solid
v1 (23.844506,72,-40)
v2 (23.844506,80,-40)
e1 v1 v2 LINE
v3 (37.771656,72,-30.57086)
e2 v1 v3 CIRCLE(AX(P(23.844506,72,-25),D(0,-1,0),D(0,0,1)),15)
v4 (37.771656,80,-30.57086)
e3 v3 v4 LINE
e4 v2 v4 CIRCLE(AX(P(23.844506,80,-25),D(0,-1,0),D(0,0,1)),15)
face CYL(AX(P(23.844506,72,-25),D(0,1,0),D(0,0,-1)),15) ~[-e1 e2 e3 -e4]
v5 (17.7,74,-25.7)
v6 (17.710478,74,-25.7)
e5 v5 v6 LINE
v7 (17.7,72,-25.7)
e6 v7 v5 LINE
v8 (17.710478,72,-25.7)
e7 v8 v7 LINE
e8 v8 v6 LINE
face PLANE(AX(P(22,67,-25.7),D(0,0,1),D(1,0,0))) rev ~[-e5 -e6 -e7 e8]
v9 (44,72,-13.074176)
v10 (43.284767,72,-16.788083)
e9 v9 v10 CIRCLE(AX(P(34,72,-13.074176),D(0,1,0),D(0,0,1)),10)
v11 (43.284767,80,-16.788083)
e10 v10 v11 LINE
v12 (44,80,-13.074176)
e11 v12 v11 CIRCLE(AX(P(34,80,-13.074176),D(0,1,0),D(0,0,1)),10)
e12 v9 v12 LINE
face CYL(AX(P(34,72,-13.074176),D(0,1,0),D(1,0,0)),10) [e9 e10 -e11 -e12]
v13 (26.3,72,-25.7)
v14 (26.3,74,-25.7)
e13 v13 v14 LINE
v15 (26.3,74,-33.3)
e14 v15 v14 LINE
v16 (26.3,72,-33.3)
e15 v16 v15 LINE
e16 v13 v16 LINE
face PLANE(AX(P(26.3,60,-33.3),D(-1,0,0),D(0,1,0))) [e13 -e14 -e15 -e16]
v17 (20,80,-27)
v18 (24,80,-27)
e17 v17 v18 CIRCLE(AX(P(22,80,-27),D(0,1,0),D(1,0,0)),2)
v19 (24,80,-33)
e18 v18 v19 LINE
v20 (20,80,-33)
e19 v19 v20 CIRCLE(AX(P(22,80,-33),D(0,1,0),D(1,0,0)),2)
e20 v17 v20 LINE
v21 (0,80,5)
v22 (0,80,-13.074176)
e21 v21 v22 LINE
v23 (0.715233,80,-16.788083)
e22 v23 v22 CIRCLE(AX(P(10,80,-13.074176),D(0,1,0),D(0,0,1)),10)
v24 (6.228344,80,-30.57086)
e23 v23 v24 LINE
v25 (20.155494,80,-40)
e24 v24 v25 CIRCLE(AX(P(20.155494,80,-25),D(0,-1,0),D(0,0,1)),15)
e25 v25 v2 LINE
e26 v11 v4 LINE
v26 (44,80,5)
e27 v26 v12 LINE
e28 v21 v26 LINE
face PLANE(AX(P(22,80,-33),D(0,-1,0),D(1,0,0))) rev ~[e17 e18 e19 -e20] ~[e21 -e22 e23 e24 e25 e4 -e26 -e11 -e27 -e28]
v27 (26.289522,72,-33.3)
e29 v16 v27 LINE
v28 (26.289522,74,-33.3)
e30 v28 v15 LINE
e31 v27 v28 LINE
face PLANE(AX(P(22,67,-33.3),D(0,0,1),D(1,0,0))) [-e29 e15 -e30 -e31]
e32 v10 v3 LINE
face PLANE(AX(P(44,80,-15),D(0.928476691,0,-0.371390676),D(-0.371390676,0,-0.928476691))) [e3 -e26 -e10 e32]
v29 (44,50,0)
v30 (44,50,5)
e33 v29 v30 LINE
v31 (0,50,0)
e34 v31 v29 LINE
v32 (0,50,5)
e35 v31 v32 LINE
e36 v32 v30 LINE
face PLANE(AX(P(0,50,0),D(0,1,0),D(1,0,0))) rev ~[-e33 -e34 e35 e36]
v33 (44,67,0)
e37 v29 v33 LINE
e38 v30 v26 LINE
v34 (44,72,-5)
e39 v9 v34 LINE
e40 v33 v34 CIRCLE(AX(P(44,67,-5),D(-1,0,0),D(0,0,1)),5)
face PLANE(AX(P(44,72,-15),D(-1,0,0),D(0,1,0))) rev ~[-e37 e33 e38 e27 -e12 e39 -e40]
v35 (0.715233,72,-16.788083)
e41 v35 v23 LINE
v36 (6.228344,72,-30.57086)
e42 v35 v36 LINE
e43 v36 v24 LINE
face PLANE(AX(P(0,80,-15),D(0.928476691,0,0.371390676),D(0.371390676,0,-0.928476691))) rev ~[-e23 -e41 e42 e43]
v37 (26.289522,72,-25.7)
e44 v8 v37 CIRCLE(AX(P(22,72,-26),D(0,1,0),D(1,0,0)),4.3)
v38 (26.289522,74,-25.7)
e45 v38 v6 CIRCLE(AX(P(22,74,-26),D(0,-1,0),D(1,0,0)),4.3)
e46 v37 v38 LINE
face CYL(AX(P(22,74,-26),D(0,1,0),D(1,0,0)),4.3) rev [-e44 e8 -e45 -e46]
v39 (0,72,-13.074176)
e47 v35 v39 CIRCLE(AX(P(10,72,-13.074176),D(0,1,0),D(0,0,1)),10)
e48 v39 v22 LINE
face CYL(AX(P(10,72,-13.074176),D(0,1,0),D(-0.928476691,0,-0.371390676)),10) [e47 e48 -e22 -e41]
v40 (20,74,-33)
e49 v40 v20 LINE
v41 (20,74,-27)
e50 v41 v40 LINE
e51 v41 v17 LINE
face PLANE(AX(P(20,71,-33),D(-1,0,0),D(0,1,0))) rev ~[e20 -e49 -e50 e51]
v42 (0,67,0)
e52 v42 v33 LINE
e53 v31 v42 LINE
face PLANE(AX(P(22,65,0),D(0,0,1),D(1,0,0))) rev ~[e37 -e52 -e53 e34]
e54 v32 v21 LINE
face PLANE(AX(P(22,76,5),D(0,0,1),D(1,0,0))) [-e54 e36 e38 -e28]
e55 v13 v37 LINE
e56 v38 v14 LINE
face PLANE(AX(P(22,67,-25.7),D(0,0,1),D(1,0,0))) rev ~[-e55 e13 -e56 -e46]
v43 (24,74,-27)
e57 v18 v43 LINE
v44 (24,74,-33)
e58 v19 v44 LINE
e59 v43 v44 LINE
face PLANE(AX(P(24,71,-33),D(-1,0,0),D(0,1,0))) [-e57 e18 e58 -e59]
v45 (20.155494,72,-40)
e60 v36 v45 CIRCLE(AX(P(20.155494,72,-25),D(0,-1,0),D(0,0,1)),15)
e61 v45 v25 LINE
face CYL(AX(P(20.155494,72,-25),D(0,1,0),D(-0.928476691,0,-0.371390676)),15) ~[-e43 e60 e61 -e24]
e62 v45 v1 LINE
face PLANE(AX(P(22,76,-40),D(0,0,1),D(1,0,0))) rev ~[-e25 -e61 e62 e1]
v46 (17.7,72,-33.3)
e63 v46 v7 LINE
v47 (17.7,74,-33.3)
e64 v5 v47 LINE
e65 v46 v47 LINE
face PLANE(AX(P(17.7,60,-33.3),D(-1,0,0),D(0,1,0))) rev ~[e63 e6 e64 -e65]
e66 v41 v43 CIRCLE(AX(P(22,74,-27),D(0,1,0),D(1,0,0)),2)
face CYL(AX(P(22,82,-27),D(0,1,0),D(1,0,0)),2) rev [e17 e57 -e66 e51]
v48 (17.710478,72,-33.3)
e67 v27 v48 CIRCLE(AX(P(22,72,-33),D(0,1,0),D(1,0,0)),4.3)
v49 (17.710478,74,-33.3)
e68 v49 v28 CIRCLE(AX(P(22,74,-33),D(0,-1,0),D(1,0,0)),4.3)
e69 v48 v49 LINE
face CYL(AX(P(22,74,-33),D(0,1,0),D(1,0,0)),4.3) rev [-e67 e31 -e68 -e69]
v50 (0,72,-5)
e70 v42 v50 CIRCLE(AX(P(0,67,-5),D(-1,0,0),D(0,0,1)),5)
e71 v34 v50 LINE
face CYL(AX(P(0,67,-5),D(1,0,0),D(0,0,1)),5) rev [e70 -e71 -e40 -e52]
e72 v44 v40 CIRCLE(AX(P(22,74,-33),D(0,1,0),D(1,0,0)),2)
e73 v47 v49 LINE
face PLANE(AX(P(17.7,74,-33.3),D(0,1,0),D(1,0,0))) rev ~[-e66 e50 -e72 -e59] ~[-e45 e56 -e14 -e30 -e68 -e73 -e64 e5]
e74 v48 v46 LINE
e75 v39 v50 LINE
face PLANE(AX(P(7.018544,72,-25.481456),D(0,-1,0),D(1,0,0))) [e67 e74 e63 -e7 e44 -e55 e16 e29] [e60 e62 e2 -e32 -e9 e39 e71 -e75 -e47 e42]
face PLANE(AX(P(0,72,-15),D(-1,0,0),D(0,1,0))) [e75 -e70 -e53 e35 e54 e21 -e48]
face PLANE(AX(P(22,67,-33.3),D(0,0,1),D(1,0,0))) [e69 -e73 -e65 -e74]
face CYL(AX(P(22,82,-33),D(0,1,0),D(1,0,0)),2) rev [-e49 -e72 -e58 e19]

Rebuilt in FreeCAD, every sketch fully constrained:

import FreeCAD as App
import Part
import Sketcher
Q = App.Units.Quantity


def edges_at(feature, points):
    """Names of the edges that pass closest to the given points."""
    edges = feature.Shape.Edges
    near = lambda p: min(range(len(edges)), key=lambda i: edges[i].distToShape(Part.Vertex(*p))[0])
    return sorted({f"Edge{near(p) + 1}" for p in points})


def add_polygon(sketch, points):
    """Adds a closed chain of lines whose ends are joined by coincident constraints."""
    first, n = sketch.GeometryCount, len(points)
    for a, b in zip(points, points[1:] + points[:1]):
        sketch.addGeometry(Part.LineSegment(App.Vector(*a, 0), App.Vector(*b, 0)), False)
    for i in range(n):
        sketch.addConstraint(Sketcher.Constraint("Coincident", first + i, 2, first + (i + 1) % n, 1))

doc = App.newDocument("Part")
body = doc.addObject("PartDesign::Body", "Body")

sketch1 = body.newObject("Sketcher::SketchObject", "Sketch")
sketch1.AttachmentSupport = (doc.getObject("XY_Plane"), [""])
sketch1.MapMode = "FlatFace"
sketch1.AttachmentOffset = App.Placement(App.Vector(0, 0, -33.3), App.Rotation())
add_polygon(sketch1, [(18, 73), (18, 59), (26, 59), (26, 73)])
sketch1.addConstraint([
    Sketcher.Constraint("Vertical", 0),
    Sketcher.Constraint("Horizontal", 1),
    Sketcher.Constraint("Vertical", 2),
    Sketcher.Constraint("Horizontal", 3),
    Sketcher.Constraint("DistanceY", 0, 2, 0, 1, Q("14 mm")),
    Sketcher.Constraint("DistanceX", 1, 1, 1, 2, Q("8.6 mm")),
    Sketcher.Constraint("DistanceY", -1, 1, 0, 2, Q("59 mm")),
    Sketcher.Constraint("DistanceX", -1, 1, 0, 2, Q("17.7 mm")),
])
pad1 = body.newObject("PartDesign::Pad", "Pad")
pad1.Profile = sketch1
pad1.Length = 7.6
body2 = doc.addObject("PartDesign::Body", "Body001")

sketch2 = body2.newObject("Sketcher::SketchObject", "Sketch001")
sketch2.AttachmentSupport = (doc.getObject("XZ_Plane001"), [""])
sketch2.MapMode = "FlatFace"
sketch2.AttachmentOffset = App.Placement(App.Vector(0, 0, -73), App.Rotation())
sketch2.addGeometry(Part.Circle(App.Vector(22, -26, 0), App.Vector(0, 0, 1), 4.3), False)
sketch2.addConstraint([
    Sketcher.Constraint("Diameter", 0, Q("8.6 mm")),
    Sketcher.Constraint("DistanceX", -1, 1, 0, 3, Q("22 mm")),
    Sketcher.Constraint("DistanceY", 0, 3, -1, 1, Q("26 mm")),
])
pad2 = body2.newObject("PartDesign::Pad", "Pad001")
pad2.Profile = sketch2
pad2.Length = 10
body3 = doc.addObject("PartDesign::Body", "Body002")

sketch3 = body3.newObject("Sketcher::SketchObject", "Sketch002")
sketch3.AttachmentSupport = (doc.getObject("XZ_Plane002"), [""])
sketch3.MapMode = "FlatFace"
sketch3.AttachmentOffset = App.Placement(App.Vector(0, 0, -73), App.Rotation())
sketch3.addGeometry(Part.Circle(App.Vector(22, -33, 0), App.Vector(0, 0, 1), 4.3), False)
sketch3.addConstraint([
    Sketcher.Constraint("Diameter", 0, Q("8.6 mm")),
    Sketcher.Constraint("DistanceX", -1, 1, 0, 3, Q("22 mm")),
    Sketcher.Constraint("DistanceY", 0, 3, -1, 1, Q("33 mm")),
])
pad3 = body3.newObject("PartDesign::Pad", "Pad002")
pad3.Profile = sketch3
pad3.Length = 10
doc.recompute()

boolean = body3.newObject("PartDesign::Boolean", "Boolean")
boolean.Type = "Fuse"
boolean.addObjects([body])
doc.recompute()

boolean2 = body3.newObject("PartDesign::Boolean", "Boolean001")
boolean2.Type = "Fuse"
boolean2.addObjects([body2])
body4 = doc.addObject("PartDesign::Body", "Body003")
doc.recompute()

body3.Placement = App.Placement(App.Vector(0, 1, 0), App.Rotation(App.Vector(0, 0, 1), 0))
boolean3 = body4.newObject("PartDesign::Boolean", "Boolean002")
boolean3.Type = "Fuse"
boolean3.addObjects([body3])
body5 = doc.addObject("PartDesign::Body", "Body004")

sketch4 = body5.newObject("Sketcher::SketchObject", "Sketch003")
sketch4.AttachmentSupport = (doc.getObject("XZ_Plane004"), [""])
sketch4.MapMode = "FlatFace"
sketch4.AttachmentOffset = App.Placement(App.Vector(0, 0, -80), App.Rotation())
sketch4.addGeometry(Part.Circle(App.Vector(22, -33, 0), App.Vector(0, 0, 1), 2), False)
sketch4.addConstraint([
    Sketcher.Constraint("Diameter", 0, Q("4 mm")),
    Sketcher.Constraint("DistanceX", -1, 1, 0, 3, Q("22 mm")),
    Sketcher.Constraint("DistanceY", 0, 3, -1, 1, Q("33 mm")),
])
pad4 = body5.newObject("PartDesign::Pad", "Pad003")
pad4.Profile = sketch4
pad4.Length = 10
body6 = doc.addObject("PartDesign::Body", "Body005")

sketch5 = body6.newObject("Sketcher::SketchObject", "Sketch004")
sketch5.AttachmentSupport = (doc.getObject("XZ_Plane005"), [""])
sketch5.MapMode = "FlatFace"
sketch5.AttachmentOffset = App.Placement(App.Vector(0, 0, -89), App.Rotation())
sketch5.addGeometry(Part.Circle(App.Vector(22, -33, 0), App.Vector(0, 0, 1), 4.2), False)
sketch5.addConstraint([
    Sketcher.Constraint("Diameter", 0, Q("8.5 mm")),
    Sketcher.Constraint("DistanceX", -1, 1, 0, 3, Q("22 mm")),
    Sketcher.Constraint("DistanceY", 0, 3, -1, 1, Q("33 mm")),
])
pad5 = body6.newObject("PartDesign::Pad", "Pad004")
pad5.Profile = sketch5
pad5.Length = 10
doc.recompute()

boolean4 = body6.newObject("PartDesign::Boolean", "Boolean003")
boolean4.Type = "Fuse"
boolean4.addObjects([body5])
body7 = doc.addObject("PartDesign::Body", "Body006")

sketch6 = body7.newObject("Sketcher::SketchObject", "Sketch005")
sketch6.AttachmentSupport = (doc.getObject("XZ_Plane006"), [""])
sketch6.MapMode = "FlatFace"
sketch6.AttachmentOffset = App.Placement(App.Vector(0, 0, -80), App.Rotation())
sketch6.addGeometry(Part.Circle(App.Vector(22, -27, 0), App.Vector(0, 0, 1), 2), False)
sketch6.addConstraint([
    Sketcher.Constraint("Diameter", 0, Q("4 mm")),
    Sketcher.Constraint("DistanceX", -1, 1, 0, 3, Q("22 mm")),
    Sketcher.Constraint("DistanceY", 0, 3, -1, 1, Q("27 mm")),
])
pad6 = body7.newObject("PartDesign::Pad", "Pad005")
pad6.Profile = sketch6
pad6.Length = 10
body8 = doc.addObject("PartDesign::Body", "Body007")

sketch7 = body8.newObject("Sketcher::SketchObject", "Sketch006")
sketch7.AttachmentSupport = (doc.getObject("XY_Plane007"), [""])
sketch7.MapMode = "FlatFace"
sketch7.AttachmentOffset = App.Placement(App.Vector(0, 0, -33), App.Rotation())
add_polygon(sketch7, [(20, 85), (20, 69), (24, 69), (24, 85)])
sketch7.addConstraint([
    Sketcher.Constraint("Vertical", 0),
    Sketcher.Constraint("Horizontal", 1),
    Sketcher.Constraint("Vertical", 2),
    Sketcher.Constraint("Horizontal", 3),
    Sketcher.Constraint("DistanceX", 1, 1, 1, 2, Q("4 mm")),
    Sketcher.Constraint("DistanceY", 0, 2, 0, 1, Q("16 mm")),
    Sketcher.Constraint("DistanceX", -1, 1, 0, 2, Q("20 mm")),
    Sketcher.Constraint("DistanceY", -1, 1, 0, 2, Q("69 mm")),
])
pad7 = body8.newObject("PartDesign::Pad", "Pad006")
pad7.Profile = sketch7
pad7.Length = 6
doc.recompute()

boolean5 = body8.newObject("PartDesign::Boolean", "Boolean004")
boolean5.Type = "Fuse"
boolean5.addObjects([body7])
doc.recompute()

boolean6 = body8.newObject("PartDesign::Boolean", "Boolean005")
boolean6.Type = "Fuse"
boolean6.addObjects([body6])
body9 = doc.addObject("PartDesign::Body", "Body008")
doc.recompute()

body8.Placement = App.Placement(App.Vector(0, 2, 0), App.Rotation(App.Vector(0, 0, 1), 0))
boolean7 = body9.newObject("PartDesign::Boolean", "Boolean006")
boolean7.Type = "Fuse"
boolean7.addObjects([body8])
body10 = doc.addObject("PartDesign::Body", "Body009")

sketch8 = body10.newObject("Sketcher::SketchObject", "Sketch007")
sketch8.AttachmentSupport = (doc.getObject("XY_Plane009"), [""])
sketch8.MapMode = "FlatFace"
sketch8.AttachmentOffset = App.Placement(App.Vector(0, 0, -38), App.Rotation())
add_polygon(sketch8, [(14, 80), (14, 72), (29, 72), (29, 80)])
sketch8.addConstraint([
    Sketcher.Constraint("Vertical", 0),
    Sketcher.Constraint("Horizontal", 1),
    Sketcher.Constraint("Vertical", 2),
    Sketcher.Constraint("Horizontal", 3),
    Sketcher.Constraint("DistanceX", 1, 1, 1, 2, Q("15 mm")),
    Sketcher.Constraint("DistanceY", 0, 2, 0, 1, Q("8 mm")),
    Sketcher.Constraint("DistanceX", -1, 1, 0, 2, Q("14 mm")),
    Sketcher.Constraint("DistanceY", -1, 1, 0, 2, Q("72 mm")),
])
pad8 = body10.newObject("PartDesign::Pad", "Pad007")
pad8.Profile = sketch8
pad8.Length = 10
body11 = doc.addObject("PartDesign::Body", "Body010")

sketch9 = body11.newObject("Sketcher::SketchObject", "Sketch008")
sketch9.AttachmentSupport = (doc.getObject("XZ_Plane010"), [""])
sketch9.MapMode = "FlatFace"
sketch9.AttachmentOffset = App.Placement(App.Vector(0, 0, -80), App.Rotation())
sketch9.addGeometry(Part.Circle(App.Vector(22, -33, 0), App.Vector(0, 0, 1), 2), False)
sketch9.addConstraint([
    Sketcher.Constraint("Diameter", 0, Q("4 mm")),
    Sketcher.Constraint("DistanceX", -1, 1, 0, 3, Q("22 mm")),
    Sketcher.Constraint("DistanceY", 0, 3, -1, 1, Q("33 mm")),
])
pad9 = body11.newObject("PartDesign::Pad", "Pad008")
pad9.Profile = sketch9
pad9.Length = 10
body12 = doc.addObject("PartDesign::Body", "Body011")

sketch10 = body12.newObject("Sketcher::SketchObject", "Sketch009")
sketch10.AttachmentSupport = (doc.getObject("XZ_Plane011"), [""])
sketch10.MapMode = "FlatFace"
sketch10.AttachmentOffset = App.Placement(App.Vector(0, 0, -89), App.Rotation())
sketch10.addGeometry(Part.Circle(App.Vector(22, -33, 0), App.Vector(0, 0, 1), 4.2), False)
sketch10.addConstraint([
    Sketcher.Constraint("Diameter", 0, Q("8.5 mm")),
    Sketcher.Constraint("DistanceX", -1, 1, 0, 3, Q("22 mm")),
    Sketcher.Constraint("DistanceY", 0, 3, -1, 1, Q("33 mm")),
])
pad10 = body12.newObject("PartDesign::Pad", "Pad009")
pad10.Profile = sketch10
pad10.Length = 10
doc.recompute()

boolean8 = body12.newObject("PartDesign::Boolean", "Boolean007")
boolean8.Type = "Fuse"
boolean8.addObjects([body11])
body13 = doc.addObject("PartDesign::Body", "Body012")
doc.recompute()

body12.Placement = App.Placement(App.Vector(0, 152, -66), App.Rotation(App.Vector(1, 0, 0), 180))
boolean9 = body13.newObject("PartDesign::Boolean", "Boolean008")
boolean9.Type = "Fuse"
boolean9.addObjects([body12])
body14 = doc.addObject("PartDesign::Body", "Body013")

sketch11 = body14.newObject("Sketcher::SketchObject", "Sketch010")
sketch11.AttachmentSupport = (doc.getObject("XZ_Plane013"), [""])
sketch11.MapMode = "FlatFace"
sketch11.AttachmentOffset = App.Placement(App.Vector(0, 0, -80), App.Rotation())
sketch11.addGeometry(Part.Circle(App.Vector(22, -33, 0), App.Vector(0, 0, 1), 4.2), False)
sketch11.addConstraint([
    Sketcher.Constraint("Diameter", 0, Q("8.5 mm")),
    Sketcher.Constraint("DistanceX", -1, 1, 0, 3, Q("22 mm")),
    Sketcher.Constraint("DistanceY", 0, 3, -1, 1, Q("33 mm")),
])
pad11 = body14.newObject("PartDesign::Pad", "Pad010")
pad11.Profile = sketch11
pad11.Length = 10
body15 = doc.addObject("PartDesign::Body", "Body014")

sketch12 = body15.newObject("Sketcher::SketchObject", "Sketch011")
sketch12.AttachmentSupport = (doc.getObject("XZ_Plane014"), [""])
sketch12.MapMode = "FlatFace"
sketch12.AttachmentOffset = App.Placement(App.Vector(0, 0, -80), App.Rotation())
sketch12.addGeometry(Part.Circle(App.Vector(22, -33, 0), App.Vector(0, 0, 1), 2), False)
sketch12.addConstraint([
    Sketcher.Constraint("Diameter", 0, Q("4 mm")),
    Sketcher.Constraint("DistanceX", -1, 1, 0, 3, Q("22 mm")),
    Sketcher.Constraint("DistanceY", 0, 3, -1, 1, Q("33 mm")),
])
pad12 = body15.newObject("PartDesign::Pad", "Pad011")
pad12.Profile = sketch12
pad12.Length = 10
body16 = doc.addObject("PartDesign::Body", "Body015")

sketch13 = body16.newObject("Sketcher::SketchObject", "Sketch012")
sketch13.AttachmentSupport = (doc.getObject("XZ_Plane015"), [""])
sketch13.MapMode = "FlatFace"
sketch13.AttachmentOffset = App.Placement(App.Vector(0, 0, -89), App.Rotation())
sketch13.addGeometry(Part.Circle(App.Vector(22, -33, 0), App.Vector(0, 0, 1), 4.2), False)
sketch13.addConstraint([
    Sketcher.Constraint("Diameter", 0, Q("8.5 mm")),
    Sketcher.Constraint("DistanceX", -1, 1, 0, 3, Q("22 mm")),
    Sketcher.Constraint("DistanceY", 0, 3, -1, 1, Q("33 mm")),
])
pad13 = body16.newObject("PartDesign::Pad", "Pad012")
pad13.Profile = sketch13
pad13.Length = 10
doc.recompute()

boolean10 = body16.newObject("PartDesign::Boolean", "Boolean009")
boolean10.Type = "Fuse"
boolean10.addObjects([body15])
body17 = doc.addObject("PartDesign::Body", "Body016")
body17.AllowCompound = True

sketch14 = body17.newObject("Sketcher::SketchObject", "Sketch013")
sketch14.AttachmentSupport = (doc.getObject("XZ_Plane016"), [""])
sketch14.MapMode = "FlatFace"
sketch14.AttachmentOffset = App.Placement(App.Vector(0, 0, -80), App.Rotation())
add_polygon(sketch14, [(44, -15), (34, -40), (34, -15)])
add_polygon(sketch14, [(0, -15), (10, -15), (10, -40)])
sketch14.addConstraint([
    Sketcher.Constraint("Vertical", 1),
    Sketcher.Constraint("Horizontal", 2),
    Sketcher.Constraint("Horizontal", 3),
    Sketcher.Constraint("Vertical", 4),
    Sketcher.Constraint("PointOnObject", 5, 2, -2),
    Sketcher.Constraint("Horizontal", 2, 2, 3, 2),
    Sketcher.Constraint("Horizontal", 0, 2, 4, 2),
    Sketcher.Constraint("Equal", 2, 3),
    Sketcher.Constraint("DistanceX", 2, 1, 2, 2, Q("10 mm")),
    Sketcher.Constraint("DistanceY", 1, 1, 1, 2, Q("25 mm")),
    Sketcher.Constraint("DistanceX", -1, 1, 0, 2, Q("34 mm")),
    Sketcher.Constraint("DistanceY", 0, 2, -1, 1, Q("40 mm")),
])
pad14 = body17.newObject("PartDesign::Pad", "Pad013")
pad14.Profile = sketch14
pad14.Length = 8
body18 = doc.addObject("PartDesign::Body", "Body017")

sketch15 = body18.newObject("Sketcher::SketchObject", "Sketch014")
sketch15.AttachmentSupport = (doc.getObject("XY_Plane017"), [""])
sketch15.MapMode = "FlatFace"
sketch15.AttachmentOffset = App.Placement(App.Vector(0, 0, -40), App.Rotation())
add_polygon(sketch15, [(10, 80), (10, 72), (34, 72), (34, 80)])
sketch15.addConstraint([
    Sketcher.Constraint("Vertical", 0),
    Sketcher.Constraint("Horizontal", 1),
    Sketcher.Constraint("Vertical", 2),
    Sketcher.Constraint("Horizontal", 3),
    Sketcher.Constraint("DistanceX", 1, 1, 1, 2, Q("24 mm")),
    Sketcher.Constraint("DistanceY", 0, 2, 0, 1, Q("8 mm")),
    Sketcher.Constraint("DistanceX", -1, 1, 0, 2, Q("10 mm")),
    Sketcher.Constraint("DistanceY", -1, 1, 0, 2, Q("72 mm")),
])
pad15 = body18.newObject("PartDesign::Pad", "Pad014")
pad15.Profile = sketch15
pad15.Length = 45
body19 = doc.addObject("PartDesign::Body", "Body018")

sketch16 = body19.newObject("Sketcher::SketchObject", "Sketch015")
sketch16.AttachmentSupport = (doc.getObject("XY_Plane018"), [""])
sketch16.MapMode = "FlatFace"
sketch16.AttachmentOffset = App.Placement(App.Vector(0, 0, -15), App.Rotation())
add_polygon(sketch16, [(0, 80), (0, 72), (44, 72), (44, 80)])
sketch16.addConstraint([
    Sketcher.Constraint("Vertical", 0),
    Sketcher.Constraint("Horizontal", 1),
    Sketcher.Constraint("Vertical", 2),
    Sketcher.Constraint("Horizontal", 3),
    Sketcher.Constraint("PointOnObject", 0, 2, -2),
    Sketcher.Constraint("DistanceX", 1, 1, 1, 2, Q("44 mm")),
    Sketcher.Constraint("DistanceY", 0, 2, 0, 1, Q("8 mm")),
    Sketcher.Constraint("DistanceY", -1, 1, 0, 2, Q("72 mm")),
])
pad16 = body19.newObject("PartDesign::Pad", "Pad015")
pad16.Profile = sketch16
pad16.Length = 15
body20 = doc.addObject("PartDesign::Body", "Body019")

sketch17 = body20.newObject("Sketcher::SketchObject", "Sketch016")
sketch17.AttachmentSupport = (doc.getObject("XY_Plane019"), [""])
sketch17.MapMode = "FlatFace"
add_polygon(sketch17, [(0, 80), (0, 50), (44, 50), (44, 80)])
sketch17.addConstraint([
    Sketcher.Constraint("Vertical", 0),
    Sketcher.Constraint("Horizontal", 1),
    Sketcher.Constraint("Vertical", 2),
    Sketcher.Constraint("Horizontal", 3),
    Sketcher.Constraint("PointOnObject", 0, 2, -2),
    Sketcher.Constraint("DistanceX", 1, 1, 1, 2, Q("44 mm")),
    Sketcher.Constraint("DistanceY", 0, 2, 0, 1, Q("30 mm")),
    Sketcher.Constraint("DistanceY", -1, 1, 0, 2, Q("50 mm")),
])
pad17 = body20.newObject("PartDesign::Pad", "Pad016")
pad17.Profile = sketch17
pad17.Length = 5
doc.recompute()

boolean11 = body20.newObject("PartDesign::Boolean", "Boolean010")
boolean11.Type = "Fuse"
boolean11.addObjects([body19])
doc.recompute()

fillet = body20.newObject("PartDesign::Fillet", "Fillet")
fillet.Base = (boolean11, edges_at(boolean11, [(22, 72, 0)]))
fillet.Radius = 5
doc.recompute()

boolean12 = body20.newObject("PartDesign::Boolean", "Boolean011")
boolean12.Type = "Fuse"
boolean12.addObjects([body18])
doc.recompute()

boolean13 = body20.newObject("PartDesign::Boolean", "Boolean012")
boolean13.Type = "Fuse"
boolean13.addObjects([body17])
doc.recompute()

fillet2 = body20.newObject("PartDesign::Fillet", "Fillet001")
fillet2.Base = (boolean13, edges_at(boolean13, [(10, 76, -40), (34, 76, -40)]))
fillet2.Radius = 15
doc.recompute()

fillet3 = body20.newObject("PartDesign::Fillet", "Fillet002")
fillet3.Base = (fillet2, edges_at(fillet2, [(44, 76, -15), (0, 76, -15)]))
fillet3.Radius = 10
doc.recompute()

boolean14 = body20.newObject("PartDesign::Boolean", "Boolean013")
boolean14.Type = "Cut"
boolean14.addObjects([body16])
doc.recompute()

chamfer = body20.newObject("PartDesign::Chamfer", "Chamfer")
chamfer.Base = (boolean14, edges_at(boolean14, [(20, 79, -33)]))
chamfer.Size = 2.2
doc.recompute()

boolean15 = body20.newObject("PartDesign::Boolean", "Boolean014")
boolean15.Type = "Fuse"
boolean15.addObjects([body14])
doc.recompute()

boolean16 = body20.newObject("PartDesign::Boolean", "Boolean015")
boolean16.Type = "Cut"
boolean16.addObjects([body13])
doc.recompute()

chamfer2 = body20.newObject("PartDesign::Chamfer", "Chamfer001")
chamfer2.Base = (boolean16, edges_at(boolean16, [(20, 73, -33)]))
chamfer2.Size = 2.2
doc.recompute()

boolean17 = body20.newObject("PartDesign::Boolean", "Boolean016")
boolean17.Type = "Fuse"
boolean17.addObjects([body10])
doc.recompute()

boolean18 = body20.newObject("PartDesign::Boolean", "Boolean017")
boolean18.Type = "Cut"
boolean18.addObjects([body9])
doc.recompute()

boolean19 = body20.newObject("PartDesign::Boolean", "Boolean018")
boolean19.Type = "Cut"
boolean19.addObjects([body4])

doc.recompute()
